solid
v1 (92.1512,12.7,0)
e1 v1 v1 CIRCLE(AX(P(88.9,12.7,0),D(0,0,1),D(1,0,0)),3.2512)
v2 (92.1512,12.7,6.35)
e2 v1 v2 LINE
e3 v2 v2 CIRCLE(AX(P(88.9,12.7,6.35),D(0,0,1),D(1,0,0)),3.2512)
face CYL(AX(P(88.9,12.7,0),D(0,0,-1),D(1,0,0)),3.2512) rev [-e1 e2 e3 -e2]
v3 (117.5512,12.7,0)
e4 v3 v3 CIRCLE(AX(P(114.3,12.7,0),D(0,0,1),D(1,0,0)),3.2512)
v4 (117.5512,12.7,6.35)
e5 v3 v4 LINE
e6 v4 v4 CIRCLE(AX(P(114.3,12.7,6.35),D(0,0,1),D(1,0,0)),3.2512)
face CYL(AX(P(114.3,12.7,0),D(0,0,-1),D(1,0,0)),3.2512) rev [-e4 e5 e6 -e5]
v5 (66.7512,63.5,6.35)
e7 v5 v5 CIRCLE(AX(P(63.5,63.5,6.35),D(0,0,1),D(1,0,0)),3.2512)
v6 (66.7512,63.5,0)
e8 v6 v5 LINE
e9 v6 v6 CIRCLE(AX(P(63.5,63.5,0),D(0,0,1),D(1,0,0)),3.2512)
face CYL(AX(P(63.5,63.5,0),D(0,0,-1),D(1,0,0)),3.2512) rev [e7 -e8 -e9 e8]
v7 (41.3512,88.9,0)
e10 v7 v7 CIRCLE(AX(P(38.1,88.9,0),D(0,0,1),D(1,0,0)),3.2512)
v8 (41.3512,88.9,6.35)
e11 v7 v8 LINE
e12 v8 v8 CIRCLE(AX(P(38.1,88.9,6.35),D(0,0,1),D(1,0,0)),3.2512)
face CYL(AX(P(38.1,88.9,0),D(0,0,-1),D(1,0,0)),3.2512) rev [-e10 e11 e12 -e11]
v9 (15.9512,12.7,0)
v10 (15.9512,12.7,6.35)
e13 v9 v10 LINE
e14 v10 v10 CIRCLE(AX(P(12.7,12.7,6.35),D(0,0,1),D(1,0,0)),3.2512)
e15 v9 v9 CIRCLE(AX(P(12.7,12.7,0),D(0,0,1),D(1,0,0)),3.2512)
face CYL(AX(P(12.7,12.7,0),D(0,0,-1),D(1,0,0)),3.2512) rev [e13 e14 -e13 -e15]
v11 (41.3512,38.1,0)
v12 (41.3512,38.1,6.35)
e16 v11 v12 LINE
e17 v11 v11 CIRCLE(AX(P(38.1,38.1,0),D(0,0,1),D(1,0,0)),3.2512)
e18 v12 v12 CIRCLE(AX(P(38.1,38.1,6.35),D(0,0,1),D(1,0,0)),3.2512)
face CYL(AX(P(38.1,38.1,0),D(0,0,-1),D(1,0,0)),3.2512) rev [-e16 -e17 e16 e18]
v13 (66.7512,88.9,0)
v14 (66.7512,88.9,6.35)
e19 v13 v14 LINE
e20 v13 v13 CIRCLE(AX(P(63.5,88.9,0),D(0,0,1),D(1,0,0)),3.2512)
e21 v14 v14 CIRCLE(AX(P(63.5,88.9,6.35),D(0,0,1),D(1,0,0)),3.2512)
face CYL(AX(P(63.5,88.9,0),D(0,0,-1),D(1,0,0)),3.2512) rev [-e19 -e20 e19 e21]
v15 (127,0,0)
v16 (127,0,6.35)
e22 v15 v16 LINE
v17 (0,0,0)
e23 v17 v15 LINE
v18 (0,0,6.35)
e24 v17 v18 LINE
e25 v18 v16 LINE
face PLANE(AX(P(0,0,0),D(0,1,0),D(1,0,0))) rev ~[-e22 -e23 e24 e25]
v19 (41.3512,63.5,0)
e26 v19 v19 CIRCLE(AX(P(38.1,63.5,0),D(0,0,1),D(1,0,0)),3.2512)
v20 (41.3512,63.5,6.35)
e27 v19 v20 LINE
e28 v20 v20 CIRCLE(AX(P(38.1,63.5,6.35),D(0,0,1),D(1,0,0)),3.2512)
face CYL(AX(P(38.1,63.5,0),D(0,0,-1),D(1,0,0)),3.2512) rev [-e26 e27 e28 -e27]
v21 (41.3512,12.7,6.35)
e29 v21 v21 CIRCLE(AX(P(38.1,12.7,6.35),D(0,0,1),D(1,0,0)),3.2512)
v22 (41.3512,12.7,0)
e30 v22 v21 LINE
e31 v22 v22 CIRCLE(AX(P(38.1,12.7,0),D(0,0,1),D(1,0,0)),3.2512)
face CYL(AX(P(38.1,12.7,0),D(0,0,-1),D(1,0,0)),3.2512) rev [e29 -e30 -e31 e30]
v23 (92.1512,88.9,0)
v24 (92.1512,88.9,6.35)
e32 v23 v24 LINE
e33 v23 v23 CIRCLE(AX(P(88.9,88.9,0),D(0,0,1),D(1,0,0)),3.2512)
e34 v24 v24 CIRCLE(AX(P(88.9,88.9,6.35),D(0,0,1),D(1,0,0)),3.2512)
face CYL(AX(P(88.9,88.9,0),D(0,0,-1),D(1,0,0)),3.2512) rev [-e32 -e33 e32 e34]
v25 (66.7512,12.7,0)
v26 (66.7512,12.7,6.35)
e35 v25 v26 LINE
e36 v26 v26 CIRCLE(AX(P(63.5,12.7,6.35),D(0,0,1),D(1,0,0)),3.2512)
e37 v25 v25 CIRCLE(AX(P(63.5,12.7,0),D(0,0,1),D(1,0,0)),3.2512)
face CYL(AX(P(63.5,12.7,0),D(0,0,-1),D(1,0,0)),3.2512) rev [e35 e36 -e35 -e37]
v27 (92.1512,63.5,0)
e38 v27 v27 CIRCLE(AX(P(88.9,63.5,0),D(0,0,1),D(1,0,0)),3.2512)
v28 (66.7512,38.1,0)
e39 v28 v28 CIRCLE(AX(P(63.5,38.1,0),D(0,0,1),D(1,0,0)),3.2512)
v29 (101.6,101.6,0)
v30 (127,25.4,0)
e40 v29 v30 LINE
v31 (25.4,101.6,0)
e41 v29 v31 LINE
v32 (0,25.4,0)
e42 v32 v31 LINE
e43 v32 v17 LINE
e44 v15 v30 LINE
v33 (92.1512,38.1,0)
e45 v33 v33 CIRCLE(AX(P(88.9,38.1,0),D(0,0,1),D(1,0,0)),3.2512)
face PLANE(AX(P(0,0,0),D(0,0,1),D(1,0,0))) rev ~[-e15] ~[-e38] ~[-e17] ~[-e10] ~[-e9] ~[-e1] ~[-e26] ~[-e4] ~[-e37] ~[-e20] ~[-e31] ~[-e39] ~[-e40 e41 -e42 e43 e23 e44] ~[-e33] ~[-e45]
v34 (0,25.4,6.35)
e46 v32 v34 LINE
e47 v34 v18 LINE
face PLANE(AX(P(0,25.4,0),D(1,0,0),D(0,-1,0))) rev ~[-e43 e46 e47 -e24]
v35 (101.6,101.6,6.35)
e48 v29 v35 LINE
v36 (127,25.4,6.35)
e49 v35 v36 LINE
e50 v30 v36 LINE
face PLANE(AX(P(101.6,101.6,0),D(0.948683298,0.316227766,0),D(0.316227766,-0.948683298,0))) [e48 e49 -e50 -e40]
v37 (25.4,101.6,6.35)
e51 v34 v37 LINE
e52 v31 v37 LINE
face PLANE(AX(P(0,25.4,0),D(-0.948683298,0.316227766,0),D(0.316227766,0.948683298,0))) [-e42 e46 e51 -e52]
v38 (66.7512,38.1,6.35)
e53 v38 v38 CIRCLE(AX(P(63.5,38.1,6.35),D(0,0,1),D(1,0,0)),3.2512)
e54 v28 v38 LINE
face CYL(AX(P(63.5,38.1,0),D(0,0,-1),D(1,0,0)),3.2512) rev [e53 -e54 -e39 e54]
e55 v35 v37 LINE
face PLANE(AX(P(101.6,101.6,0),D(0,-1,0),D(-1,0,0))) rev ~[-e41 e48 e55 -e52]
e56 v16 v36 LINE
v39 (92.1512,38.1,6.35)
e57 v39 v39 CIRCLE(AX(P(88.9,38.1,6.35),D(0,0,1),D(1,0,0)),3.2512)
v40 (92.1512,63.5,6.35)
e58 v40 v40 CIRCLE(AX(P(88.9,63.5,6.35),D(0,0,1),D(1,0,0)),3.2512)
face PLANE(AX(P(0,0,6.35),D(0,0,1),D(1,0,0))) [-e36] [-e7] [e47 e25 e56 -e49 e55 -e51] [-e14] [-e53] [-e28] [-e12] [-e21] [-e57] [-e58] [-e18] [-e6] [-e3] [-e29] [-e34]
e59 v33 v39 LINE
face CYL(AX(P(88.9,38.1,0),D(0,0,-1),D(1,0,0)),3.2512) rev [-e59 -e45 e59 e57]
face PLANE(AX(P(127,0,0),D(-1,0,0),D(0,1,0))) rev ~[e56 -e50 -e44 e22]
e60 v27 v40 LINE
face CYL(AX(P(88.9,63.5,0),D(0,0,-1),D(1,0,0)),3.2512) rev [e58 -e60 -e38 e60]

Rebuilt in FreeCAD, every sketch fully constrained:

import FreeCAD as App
import Part
import Sketcher

V = App.Vector
Q = App.Units.Quantity

doc = App.newDocument("Part")
body = doc.addObject("PartDesign::Body", "Body")

# Sketch on XY plane
sketch1 = body.newObject("Sketcher::SketchObject", "Sketch")
sketch1.AttachmentSupport = (doc.getObject("XY_Plane"), [""])
sketch1.MapMode = "FlatFace"
sketch1.addGeometry([
    Part.LineSegment(V(0, 25.4, 0), V(0, 0, 0)),  # 0
    Part.LineSegment(V(0, 0, 0), V(127, 0, 0)),  # 1
    Part.LineSegment(V(127, 0, 0), V(127, 25.4, 0)),  # 2
    Part.LineSegment(V(127, 25.4, 0), V(101.6, 101.6, 0)),  # 3
    Part.LineSegment(V(101.6, 101.6, 0), V(25.4, 101.6, 0)),  # 4
    Part.LineSegment(V(25.4, 101.6, 0), V(0, 25.4, 0)),  # 5
    Part.Circle(V(12.7, 12.7, 0), V(0, 0, 1), 3.2512),  # 6
    Part.Circle(V(38.1, 12.7, 0), V(0, 0, 1), 3.2512),  # 7
    Part.Circle(V(38.1, 38.1, 0), V(0, 0, 1), 3.2512),  # 8
    Part.Circle(V(63.5, 12.7, 0), V(0, 0, 1), 3.2512),  # 9
    Part.Circle(V(88.9, 12.7, 0), V(0, 0, 1), 3.2512),  # 10
    Part.Circle(V(114.3, 12.7, 0), V(0, 0, 1), 3.2512),  # 11
    Part.Circle(V(63.5, 38.1, 0), V(0, 0, 1), 3.2512),  # 12
    Part.Circle(V(88.9, 38.1, 0), V(0, 0, 1), 3.2512),  # 13
    Part.Circle(V(38.1, 63.5, 0), V(0, 0, 1), 3.2512),  # 14
    Part.Circle(V(38.1, 88.9, 0), V(0, 0, 1), 3.2512),  # 15
    Part.Circle(V(63.5, 63.5, 0), V(0, 0, 1), 3.2512),  # 16
    Part.Circle(V(88.9, 63.5, 0), V(0, 0, 1), 3.2512),  # 17
    Part.Circle(V(63.5, 88.9, 0), V(0, 0, 1), 3.2512),  # 18
    Part.Circle(V(88.9, 88.9, 0), V(0, 0, 1), 3.2512),  # 19
], False)
sketch1.addConstraint([
    Sketcher.Constraint("Coincident", 0, 2, 1, 1),
    Sketcher.Constraint("Coincident", 1, 2, 2, 1),
    Sketcher.Constraint("Coincident", 2, 2, 3, 1),
    Sketcher.Constraint("Coincident", 3, 2, 4, 1),
    Sketcher.Constraint("Coincident", 4, 2, 5, 1),
    Sketcher.Constraint("Coincident", 5, 2, 0, 1),
    Sketcher.Constraint("Vertical", 0),
    Sketcher.Constraint("Horizontal", 1),
    Sketcher.Constraint("Vertical", 2),
    Sketcher.Constraint("Horizontal", 4),
    Sketcher.Constraint("Coincident", 0, 2, -1, 1),
    Sketcher.Constraint("Equal", 6, 7),
    Sketcher.Constraint("Equal", 7, 8),
    Sketcher.Constraint("Equal", 8, 9),
    Sketcher.Constraint("Equal", 9, 10),
    Sketcher.Constraint("Equal", 10, 11),
    Sketcher.Constraint("Equal", 11, 12),
    Sketcher.Constraint("Equal", 12, 13),
    Sketcher.Constraint("Equal", 13, 14),
    Sketcher.Constraint("Equal", 14, 15),
    Sketcher.Constraint("Equal", 15, 16),
    Sketcher.Constraint("Equal", 16, 17),
    Sketcher.Constraint("Equal", 17, 18),
    Sketcher.Constraint("Equal", 18, 19),
    Sketcher.Constraint("Horizontal", 6, 3, 7, 3),
    Sketcher.Constraint("Horizontal", 7, 3, 9, 3),
    Sketcher.Constraint("Horizontal", 9, 3, 10, 3),
    Sketcher.Constraint("Horizontal", 10, 3, 11, 3),
    Sketcher.Constraint("Horizontal", 8, 3, 12, 3),
    Sketcher.Constraint("Horizontal", 12, 3, 13, 3),
    Sketcher.Constraint("Horizontal", 14, 3, 16, 3),
    Sketcher.Constraint("Horizontal", 16, 3, 17, 3),
    Sketcher.Constraint("Horizontal", 15, 3, 18, 3),
    Sketcher.Constraint("Horizontal", 18, 3, 19, 3),
    Sketcher.Constraint("Horizontal", 2, 2, 5, 2),
    Sketcher.Constraint("Vertical", 7, 3, 8, 3),
    Sketcher.Constraint("Vertical", 9, 3, 12, 3),
    Sketcher.Constraint("Vertical", 10, 3, 13, 3),
    Sketcher.Constraint("Vertical", 8, 3, 14, 3),
    Sketcher.Constraint("Vertical", 14, 3, 15, 3),
    Sketcher.Constraint("Vertical", 12, 3, 16, 3),
    Sketcher.Constraint("Vertical", 13, 3, 17, 3),
    Sketcher.Constraint("Vertical", 16, 3, 18, 3),
    Sketcher.Constraint("Vertical", 17, 3, 19, 3),
    Sketcher.Constraint("Equal", 3, 5),
    Sketcher.Constraint("DistanceX", 1, 1, 1, 2, Q("5 in")),
    Sketcher.Constraint("DistanceY", 0, 2, 0, 1, Q("1 in")),
    Sketcher.Constraint("Diameter", 6, Q("0.256 in")),
    Sketcher.Constraint("DistanceX", -1, 1, 3, 2, Q("4 in")),
    Sketcher.Constraint("DistanceY", -1, 1, 3, 2, Q("4 in")),
    Sketcher.Constraint("DistanceX", 6, 3, 7, 3, Q("1 in")),
    Sketcher.Constraint("DistanceY", 7, 3, 8, 3, Q("1 in")),
    Sketcher.Constraint("DistanceX", 7, 3, 9, 3, Q("1 in")),
    Sketcher.Constraint("DistanceX", 9, 3, 10, 3, Q("1 in")),
    Sketcher.Constraint("DistanceX", 10, 3, 11, 3, Q("1 in")),
    Sketcher.Constraint("DistanceY", 8, 3, 14, 3, Q("1 in")),
    Sketcher.Constraint("DistanceY", 14, 3, 15, 3, Q("1 in")),
    Sketcher.Constraint("DistanceX", -1, 1, 6, 3, Q("0.5 in")),
    Sketcher.Constraint("DistanceY", -1, 1, 6, 3, Q("0.5 in")),
])
pad1 = body.newObject("PartDesign::Pad", "Pad")
pad1.Profile = sketch1
pad1.Length = Q("0.25 in")

doc.recompute()
